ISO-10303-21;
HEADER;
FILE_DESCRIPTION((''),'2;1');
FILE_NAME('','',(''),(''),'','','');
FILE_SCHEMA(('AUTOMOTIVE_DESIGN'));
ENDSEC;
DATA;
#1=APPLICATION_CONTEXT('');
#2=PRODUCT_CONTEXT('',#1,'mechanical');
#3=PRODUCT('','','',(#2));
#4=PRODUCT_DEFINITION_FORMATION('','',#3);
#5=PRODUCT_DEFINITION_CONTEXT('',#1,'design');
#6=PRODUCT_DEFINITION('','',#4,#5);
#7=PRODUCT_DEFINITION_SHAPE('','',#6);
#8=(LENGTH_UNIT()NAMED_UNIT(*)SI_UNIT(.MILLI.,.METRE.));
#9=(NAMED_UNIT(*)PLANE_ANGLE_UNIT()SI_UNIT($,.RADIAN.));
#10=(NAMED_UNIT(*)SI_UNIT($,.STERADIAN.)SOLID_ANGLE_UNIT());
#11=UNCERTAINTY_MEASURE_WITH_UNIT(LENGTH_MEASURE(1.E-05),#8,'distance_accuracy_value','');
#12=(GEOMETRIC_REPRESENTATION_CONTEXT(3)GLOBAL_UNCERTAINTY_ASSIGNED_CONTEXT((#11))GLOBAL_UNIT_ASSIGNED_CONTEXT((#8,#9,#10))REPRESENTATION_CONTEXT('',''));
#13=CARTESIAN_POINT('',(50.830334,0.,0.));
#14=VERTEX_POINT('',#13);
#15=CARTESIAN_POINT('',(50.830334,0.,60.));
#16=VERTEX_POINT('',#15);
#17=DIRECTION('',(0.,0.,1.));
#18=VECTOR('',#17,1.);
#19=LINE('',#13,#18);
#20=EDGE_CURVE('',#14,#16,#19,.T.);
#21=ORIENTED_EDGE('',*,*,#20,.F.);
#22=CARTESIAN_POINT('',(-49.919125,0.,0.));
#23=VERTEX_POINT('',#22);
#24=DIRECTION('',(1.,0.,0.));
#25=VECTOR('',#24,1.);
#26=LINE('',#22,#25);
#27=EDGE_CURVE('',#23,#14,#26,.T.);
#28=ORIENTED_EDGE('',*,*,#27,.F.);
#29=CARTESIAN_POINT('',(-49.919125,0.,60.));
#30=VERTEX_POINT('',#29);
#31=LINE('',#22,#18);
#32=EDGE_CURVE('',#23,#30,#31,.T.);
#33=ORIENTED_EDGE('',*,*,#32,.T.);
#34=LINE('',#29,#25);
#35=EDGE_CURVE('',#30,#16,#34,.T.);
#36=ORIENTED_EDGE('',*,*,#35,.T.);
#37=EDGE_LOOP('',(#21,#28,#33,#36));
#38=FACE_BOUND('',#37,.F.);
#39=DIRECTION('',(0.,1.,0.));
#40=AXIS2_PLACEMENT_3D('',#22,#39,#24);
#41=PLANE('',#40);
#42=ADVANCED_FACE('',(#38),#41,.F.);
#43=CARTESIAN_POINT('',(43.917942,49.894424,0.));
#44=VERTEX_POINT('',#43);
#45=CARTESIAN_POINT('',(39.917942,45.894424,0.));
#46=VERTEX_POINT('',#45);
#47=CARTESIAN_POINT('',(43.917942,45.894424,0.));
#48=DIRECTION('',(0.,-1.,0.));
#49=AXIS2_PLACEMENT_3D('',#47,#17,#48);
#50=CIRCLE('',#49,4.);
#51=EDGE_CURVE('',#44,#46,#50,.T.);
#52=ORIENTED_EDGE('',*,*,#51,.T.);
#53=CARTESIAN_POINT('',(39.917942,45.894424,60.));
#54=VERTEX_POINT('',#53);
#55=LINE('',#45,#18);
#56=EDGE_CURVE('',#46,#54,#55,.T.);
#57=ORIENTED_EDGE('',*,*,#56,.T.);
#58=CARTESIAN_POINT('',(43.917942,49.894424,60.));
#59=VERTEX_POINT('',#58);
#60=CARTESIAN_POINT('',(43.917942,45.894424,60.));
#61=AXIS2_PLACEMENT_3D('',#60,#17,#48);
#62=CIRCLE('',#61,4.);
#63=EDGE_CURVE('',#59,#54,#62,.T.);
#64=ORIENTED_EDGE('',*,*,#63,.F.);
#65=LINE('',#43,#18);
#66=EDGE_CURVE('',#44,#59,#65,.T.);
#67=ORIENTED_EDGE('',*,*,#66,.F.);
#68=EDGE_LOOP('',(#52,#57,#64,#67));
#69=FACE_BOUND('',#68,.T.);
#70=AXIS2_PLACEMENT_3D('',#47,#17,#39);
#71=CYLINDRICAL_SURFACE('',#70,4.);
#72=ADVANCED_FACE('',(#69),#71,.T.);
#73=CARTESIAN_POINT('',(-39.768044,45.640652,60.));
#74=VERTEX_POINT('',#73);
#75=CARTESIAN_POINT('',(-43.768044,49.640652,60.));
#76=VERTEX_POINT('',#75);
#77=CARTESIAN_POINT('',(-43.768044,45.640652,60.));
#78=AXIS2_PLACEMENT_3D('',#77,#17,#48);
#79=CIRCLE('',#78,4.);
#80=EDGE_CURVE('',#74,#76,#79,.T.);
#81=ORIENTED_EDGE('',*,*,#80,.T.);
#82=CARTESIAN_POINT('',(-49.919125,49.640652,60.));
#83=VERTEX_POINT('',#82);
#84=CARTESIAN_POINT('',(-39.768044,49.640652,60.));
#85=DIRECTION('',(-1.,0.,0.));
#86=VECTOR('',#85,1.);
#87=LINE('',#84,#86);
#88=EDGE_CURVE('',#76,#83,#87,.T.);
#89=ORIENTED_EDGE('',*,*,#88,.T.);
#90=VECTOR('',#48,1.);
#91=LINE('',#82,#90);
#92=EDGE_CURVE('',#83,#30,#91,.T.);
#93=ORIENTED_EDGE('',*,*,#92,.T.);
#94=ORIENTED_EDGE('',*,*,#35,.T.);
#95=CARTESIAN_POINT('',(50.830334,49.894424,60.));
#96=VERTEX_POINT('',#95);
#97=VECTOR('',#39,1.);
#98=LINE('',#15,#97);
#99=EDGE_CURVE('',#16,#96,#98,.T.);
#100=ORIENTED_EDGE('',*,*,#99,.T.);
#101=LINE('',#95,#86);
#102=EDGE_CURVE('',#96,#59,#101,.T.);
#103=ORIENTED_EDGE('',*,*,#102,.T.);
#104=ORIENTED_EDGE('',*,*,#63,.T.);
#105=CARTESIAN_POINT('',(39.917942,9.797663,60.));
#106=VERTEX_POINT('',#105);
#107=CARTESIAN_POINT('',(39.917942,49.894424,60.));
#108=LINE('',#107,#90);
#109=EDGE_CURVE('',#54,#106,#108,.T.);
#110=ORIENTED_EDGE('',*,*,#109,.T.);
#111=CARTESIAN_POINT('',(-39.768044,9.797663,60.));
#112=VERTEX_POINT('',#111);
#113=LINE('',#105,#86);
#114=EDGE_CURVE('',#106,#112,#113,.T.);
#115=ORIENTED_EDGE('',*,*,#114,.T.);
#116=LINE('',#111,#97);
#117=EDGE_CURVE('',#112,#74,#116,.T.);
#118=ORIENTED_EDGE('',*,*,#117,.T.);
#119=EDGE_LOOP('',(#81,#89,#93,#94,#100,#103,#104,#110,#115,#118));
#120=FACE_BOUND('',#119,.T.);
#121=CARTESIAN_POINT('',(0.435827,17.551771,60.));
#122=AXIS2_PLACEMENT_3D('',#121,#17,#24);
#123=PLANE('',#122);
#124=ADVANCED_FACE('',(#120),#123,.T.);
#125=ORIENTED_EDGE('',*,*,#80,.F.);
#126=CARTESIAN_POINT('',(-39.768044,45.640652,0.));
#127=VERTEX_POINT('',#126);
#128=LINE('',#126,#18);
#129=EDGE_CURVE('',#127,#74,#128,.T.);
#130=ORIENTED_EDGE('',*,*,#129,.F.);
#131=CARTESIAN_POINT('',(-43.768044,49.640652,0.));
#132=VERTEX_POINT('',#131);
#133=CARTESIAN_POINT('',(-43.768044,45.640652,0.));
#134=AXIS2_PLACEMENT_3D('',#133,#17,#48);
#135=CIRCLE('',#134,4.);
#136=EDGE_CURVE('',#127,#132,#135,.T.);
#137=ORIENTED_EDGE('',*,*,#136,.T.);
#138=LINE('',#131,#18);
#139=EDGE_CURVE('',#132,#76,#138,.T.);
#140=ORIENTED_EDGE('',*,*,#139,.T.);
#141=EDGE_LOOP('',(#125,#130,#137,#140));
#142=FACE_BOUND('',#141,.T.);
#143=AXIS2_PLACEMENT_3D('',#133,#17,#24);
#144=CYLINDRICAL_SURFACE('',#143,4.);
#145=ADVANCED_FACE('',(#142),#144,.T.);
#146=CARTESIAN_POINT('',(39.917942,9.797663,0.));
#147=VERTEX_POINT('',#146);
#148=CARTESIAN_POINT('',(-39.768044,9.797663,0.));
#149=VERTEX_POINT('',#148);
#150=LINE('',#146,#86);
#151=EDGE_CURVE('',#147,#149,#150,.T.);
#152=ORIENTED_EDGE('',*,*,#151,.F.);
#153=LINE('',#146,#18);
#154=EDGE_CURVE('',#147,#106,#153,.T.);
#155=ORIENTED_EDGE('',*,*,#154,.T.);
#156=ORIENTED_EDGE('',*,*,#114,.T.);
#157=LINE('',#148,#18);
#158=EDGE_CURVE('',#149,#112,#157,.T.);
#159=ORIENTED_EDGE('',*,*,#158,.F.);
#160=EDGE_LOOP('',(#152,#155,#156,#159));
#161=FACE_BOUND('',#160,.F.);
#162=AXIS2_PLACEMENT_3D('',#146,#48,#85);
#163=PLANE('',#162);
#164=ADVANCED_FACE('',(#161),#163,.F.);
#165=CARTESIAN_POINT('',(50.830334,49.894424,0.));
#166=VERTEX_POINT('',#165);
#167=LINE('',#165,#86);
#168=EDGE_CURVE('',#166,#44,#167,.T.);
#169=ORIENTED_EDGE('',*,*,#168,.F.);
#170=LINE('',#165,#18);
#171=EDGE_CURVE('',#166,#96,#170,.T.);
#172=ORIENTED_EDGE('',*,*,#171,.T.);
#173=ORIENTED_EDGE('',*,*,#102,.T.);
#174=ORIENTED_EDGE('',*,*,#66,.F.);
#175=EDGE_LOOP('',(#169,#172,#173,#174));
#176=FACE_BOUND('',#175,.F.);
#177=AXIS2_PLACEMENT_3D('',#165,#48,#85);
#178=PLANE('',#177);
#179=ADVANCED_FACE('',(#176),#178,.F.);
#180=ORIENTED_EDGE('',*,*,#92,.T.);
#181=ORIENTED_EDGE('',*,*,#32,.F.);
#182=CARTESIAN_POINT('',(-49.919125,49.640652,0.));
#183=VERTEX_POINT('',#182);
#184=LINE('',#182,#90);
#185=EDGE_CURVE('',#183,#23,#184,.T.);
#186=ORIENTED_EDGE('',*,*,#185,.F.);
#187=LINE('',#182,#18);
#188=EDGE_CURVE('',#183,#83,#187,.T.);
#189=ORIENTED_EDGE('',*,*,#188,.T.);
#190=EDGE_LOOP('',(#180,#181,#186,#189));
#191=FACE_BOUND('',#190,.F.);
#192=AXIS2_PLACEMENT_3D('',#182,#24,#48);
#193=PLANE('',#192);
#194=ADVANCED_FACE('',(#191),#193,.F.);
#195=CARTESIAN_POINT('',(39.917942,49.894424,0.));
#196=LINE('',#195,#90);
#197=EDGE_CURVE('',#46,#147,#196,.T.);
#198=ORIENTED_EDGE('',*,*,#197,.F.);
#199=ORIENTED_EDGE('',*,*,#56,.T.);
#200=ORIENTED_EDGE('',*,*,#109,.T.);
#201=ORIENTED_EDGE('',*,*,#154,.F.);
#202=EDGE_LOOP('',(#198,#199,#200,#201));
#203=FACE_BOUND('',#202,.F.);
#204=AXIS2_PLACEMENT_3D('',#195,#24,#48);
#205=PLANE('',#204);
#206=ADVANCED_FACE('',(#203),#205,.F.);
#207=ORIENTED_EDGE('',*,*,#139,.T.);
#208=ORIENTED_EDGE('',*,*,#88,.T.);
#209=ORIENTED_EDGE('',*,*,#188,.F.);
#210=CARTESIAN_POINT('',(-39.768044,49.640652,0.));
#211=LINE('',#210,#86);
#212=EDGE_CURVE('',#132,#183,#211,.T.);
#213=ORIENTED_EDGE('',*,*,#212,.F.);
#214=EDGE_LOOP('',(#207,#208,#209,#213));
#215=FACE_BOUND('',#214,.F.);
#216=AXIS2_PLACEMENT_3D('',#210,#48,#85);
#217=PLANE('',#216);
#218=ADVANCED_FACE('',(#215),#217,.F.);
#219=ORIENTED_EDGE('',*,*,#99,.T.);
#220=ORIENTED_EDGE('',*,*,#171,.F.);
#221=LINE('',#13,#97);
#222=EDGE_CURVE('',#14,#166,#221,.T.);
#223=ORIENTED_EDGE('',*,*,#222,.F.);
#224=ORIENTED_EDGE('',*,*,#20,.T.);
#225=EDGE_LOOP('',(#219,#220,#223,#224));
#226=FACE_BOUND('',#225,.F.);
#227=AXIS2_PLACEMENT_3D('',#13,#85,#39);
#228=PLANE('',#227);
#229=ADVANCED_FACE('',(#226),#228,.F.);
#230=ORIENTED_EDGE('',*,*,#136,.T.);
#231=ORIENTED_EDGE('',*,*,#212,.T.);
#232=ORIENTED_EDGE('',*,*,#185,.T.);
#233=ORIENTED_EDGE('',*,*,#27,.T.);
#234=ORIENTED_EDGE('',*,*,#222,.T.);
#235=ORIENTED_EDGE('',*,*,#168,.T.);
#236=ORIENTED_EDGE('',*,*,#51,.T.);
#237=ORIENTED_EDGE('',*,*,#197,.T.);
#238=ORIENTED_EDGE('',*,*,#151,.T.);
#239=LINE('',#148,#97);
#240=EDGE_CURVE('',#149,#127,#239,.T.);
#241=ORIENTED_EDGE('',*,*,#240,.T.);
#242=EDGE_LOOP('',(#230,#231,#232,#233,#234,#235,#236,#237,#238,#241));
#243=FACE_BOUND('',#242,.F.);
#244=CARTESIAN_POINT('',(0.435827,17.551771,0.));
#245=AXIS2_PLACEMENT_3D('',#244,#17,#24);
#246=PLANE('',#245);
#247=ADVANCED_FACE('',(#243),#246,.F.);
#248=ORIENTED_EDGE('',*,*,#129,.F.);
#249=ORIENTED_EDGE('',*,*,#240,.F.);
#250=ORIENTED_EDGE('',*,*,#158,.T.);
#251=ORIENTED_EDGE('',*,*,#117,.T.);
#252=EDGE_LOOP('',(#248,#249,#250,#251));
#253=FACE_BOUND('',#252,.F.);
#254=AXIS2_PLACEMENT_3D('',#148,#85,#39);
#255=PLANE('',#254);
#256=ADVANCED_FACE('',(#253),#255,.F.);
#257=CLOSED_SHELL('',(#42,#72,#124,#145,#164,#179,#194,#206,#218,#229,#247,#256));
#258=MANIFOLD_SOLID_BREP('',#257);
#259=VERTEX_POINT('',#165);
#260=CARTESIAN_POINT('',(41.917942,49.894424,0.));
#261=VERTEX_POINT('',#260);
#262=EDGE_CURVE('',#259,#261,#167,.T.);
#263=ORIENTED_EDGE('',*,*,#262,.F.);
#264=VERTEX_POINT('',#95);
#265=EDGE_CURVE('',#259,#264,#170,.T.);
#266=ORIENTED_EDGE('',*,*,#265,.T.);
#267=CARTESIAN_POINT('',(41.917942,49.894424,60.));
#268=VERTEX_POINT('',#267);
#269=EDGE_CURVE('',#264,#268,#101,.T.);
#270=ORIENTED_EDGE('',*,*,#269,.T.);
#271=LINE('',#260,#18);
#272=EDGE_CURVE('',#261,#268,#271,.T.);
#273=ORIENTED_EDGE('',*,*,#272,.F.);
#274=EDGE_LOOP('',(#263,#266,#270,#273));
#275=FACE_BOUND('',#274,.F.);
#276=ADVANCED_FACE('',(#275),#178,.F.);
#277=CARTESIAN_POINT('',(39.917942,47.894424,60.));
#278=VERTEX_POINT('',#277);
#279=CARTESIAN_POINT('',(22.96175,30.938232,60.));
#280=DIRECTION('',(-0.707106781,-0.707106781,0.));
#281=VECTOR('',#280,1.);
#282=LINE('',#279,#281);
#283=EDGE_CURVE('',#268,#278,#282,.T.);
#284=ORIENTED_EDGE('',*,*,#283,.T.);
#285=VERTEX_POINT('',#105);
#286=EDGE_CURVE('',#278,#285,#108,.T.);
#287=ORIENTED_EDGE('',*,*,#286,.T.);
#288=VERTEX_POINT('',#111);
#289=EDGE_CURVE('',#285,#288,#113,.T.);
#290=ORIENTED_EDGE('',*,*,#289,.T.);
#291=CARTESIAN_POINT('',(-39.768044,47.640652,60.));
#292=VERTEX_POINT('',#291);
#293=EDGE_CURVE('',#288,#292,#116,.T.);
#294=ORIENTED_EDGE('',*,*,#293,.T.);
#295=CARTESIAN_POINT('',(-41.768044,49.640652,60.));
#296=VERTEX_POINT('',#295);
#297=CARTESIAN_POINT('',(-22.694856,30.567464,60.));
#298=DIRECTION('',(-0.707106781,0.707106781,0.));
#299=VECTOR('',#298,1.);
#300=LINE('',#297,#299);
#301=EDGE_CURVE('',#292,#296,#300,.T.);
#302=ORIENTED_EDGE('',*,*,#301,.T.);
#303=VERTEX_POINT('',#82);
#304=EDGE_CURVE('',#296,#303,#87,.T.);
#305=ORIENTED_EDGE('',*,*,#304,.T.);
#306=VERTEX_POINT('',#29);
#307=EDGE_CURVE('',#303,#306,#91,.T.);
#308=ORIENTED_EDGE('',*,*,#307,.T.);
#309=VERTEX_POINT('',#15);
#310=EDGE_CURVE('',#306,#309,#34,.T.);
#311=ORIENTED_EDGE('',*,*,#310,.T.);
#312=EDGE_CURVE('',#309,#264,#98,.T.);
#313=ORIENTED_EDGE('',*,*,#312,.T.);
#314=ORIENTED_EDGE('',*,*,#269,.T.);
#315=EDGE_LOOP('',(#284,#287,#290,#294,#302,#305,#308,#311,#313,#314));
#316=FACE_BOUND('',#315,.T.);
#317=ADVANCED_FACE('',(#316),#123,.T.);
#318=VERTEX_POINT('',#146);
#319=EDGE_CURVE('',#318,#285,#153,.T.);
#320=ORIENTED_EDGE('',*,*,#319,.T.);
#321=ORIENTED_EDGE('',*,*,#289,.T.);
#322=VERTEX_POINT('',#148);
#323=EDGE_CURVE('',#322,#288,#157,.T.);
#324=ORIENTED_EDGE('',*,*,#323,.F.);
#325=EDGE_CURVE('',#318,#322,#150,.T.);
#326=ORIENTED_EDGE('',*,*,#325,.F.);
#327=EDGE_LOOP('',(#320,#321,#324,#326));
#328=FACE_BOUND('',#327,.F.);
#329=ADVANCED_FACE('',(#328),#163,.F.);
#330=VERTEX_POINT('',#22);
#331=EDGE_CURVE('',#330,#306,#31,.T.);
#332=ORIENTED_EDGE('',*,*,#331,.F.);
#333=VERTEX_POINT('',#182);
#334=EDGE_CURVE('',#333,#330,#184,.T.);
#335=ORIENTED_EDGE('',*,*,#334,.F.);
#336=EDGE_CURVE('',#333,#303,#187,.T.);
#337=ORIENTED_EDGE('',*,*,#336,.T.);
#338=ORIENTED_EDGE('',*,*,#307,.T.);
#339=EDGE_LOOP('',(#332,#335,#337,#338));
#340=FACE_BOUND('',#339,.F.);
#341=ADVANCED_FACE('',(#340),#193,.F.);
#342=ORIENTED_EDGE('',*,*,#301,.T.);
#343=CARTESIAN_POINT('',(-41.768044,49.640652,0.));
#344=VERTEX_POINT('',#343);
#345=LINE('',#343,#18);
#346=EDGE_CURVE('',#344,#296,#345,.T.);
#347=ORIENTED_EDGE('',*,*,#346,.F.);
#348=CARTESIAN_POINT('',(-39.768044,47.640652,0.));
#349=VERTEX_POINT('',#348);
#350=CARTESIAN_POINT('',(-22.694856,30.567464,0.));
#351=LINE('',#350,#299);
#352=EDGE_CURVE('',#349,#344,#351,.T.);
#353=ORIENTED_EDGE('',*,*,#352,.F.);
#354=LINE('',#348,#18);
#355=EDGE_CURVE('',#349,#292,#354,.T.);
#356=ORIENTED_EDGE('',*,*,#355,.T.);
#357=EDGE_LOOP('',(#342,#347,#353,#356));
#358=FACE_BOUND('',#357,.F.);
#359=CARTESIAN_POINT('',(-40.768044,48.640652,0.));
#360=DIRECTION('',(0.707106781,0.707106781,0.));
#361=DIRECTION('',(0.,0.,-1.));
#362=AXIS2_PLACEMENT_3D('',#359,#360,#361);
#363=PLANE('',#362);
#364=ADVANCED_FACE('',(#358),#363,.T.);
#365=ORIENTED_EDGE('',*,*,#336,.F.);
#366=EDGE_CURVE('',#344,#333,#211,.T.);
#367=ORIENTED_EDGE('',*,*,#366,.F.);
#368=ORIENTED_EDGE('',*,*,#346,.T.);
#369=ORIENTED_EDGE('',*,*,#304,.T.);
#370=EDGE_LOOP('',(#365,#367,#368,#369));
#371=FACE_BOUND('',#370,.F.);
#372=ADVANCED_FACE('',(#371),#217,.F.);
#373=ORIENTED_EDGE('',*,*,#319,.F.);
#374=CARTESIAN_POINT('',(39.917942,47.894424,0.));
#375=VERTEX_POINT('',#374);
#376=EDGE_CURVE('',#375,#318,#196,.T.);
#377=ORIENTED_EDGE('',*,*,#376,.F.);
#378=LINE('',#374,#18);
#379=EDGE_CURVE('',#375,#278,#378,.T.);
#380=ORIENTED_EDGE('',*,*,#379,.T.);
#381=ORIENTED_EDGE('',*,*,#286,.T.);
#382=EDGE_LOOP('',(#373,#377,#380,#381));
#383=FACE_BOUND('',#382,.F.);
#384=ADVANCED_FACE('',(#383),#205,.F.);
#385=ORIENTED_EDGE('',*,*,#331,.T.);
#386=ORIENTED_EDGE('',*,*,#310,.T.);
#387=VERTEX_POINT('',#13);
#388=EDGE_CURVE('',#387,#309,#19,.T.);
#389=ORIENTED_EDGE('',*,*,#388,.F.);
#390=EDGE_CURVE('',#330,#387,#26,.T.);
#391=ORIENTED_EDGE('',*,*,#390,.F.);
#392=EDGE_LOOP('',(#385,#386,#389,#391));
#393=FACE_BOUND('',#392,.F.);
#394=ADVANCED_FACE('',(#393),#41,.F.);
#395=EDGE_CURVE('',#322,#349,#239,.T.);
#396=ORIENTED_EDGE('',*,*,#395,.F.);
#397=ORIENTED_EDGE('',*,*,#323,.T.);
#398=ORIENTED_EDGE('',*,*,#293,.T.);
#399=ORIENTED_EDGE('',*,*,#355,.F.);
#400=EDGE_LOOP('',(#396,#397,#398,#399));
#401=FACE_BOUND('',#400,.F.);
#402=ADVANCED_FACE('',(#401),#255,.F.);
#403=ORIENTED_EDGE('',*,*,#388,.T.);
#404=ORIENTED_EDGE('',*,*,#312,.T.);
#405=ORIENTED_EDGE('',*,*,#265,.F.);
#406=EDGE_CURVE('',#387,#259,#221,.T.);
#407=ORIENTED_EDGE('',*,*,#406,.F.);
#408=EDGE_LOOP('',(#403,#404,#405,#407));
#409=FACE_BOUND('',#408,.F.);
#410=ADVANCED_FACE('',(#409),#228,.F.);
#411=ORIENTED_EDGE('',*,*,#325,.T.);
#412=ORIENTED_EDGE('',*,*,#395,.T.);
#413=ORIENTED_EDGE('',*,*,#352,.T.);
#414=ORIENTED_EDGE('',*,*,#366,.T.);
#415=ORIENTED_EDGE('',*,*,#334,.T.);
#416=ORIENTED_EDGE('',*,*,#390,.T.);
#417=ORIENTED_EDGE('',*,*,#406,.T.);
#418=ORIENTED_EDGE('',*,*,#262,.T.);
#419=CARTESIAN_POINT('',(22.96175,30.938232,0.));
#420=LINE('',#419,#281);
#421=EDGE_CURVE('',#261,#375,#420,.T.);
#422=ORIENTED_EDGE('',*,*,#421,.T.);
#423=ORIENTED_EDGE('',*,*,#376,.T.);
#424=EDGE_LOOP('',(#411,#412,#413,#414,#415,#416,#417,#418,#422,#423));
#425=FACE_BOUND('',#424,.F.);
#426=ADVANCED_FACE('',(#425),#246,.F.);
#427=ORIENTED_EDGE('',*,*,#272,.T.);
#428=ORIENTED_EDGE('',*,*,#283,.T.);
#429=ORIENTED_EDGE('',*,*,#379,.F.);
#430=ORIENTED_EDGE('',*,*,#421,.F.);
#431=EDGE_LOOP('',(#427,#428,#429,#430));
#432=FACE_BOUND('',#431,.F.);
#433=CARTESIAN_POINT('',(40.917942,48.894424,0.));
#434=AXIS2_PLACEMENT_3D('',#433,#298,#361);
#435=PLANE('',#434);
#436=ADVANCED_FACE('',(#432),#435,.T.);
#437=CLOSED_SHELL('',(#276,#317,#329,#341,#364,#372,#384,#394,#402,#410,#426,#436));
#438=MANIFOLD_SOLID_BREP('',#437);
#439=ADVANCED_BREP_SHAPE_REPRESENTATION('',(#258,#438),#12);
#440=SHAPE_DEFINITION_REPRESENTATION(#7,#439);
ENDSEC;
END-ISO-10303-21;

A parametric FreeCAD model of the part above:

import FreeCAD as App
import Part
import Sketcher

V = App.Vector
Q = App.Units.Quantity


def edges_at(feature, points):
    """Names of the edges that pass closest to the given points."""
    edges = feature.Shape.Edges
    near = lambda p: min(range(len(edges)), key=lambda i: edges[i].distToShape(Part.Vertex(*p))[0])
    return sorted({f"Edge{near(p) + 1}" for p in points})

doc = App.newDocument("Part")
params = doc.addObject("Spreadsheet::Sheet", "Params")
for row, (alias, value) in enumerate([
    ("pad1_length", "60 mm"),
    ("chamfer_size", "2 mm"),
    ("pad2_length", "60 mm"),
    ("fillet_radius", "4 mm"),
], start=1):
    params.set(f"A{row}", alias)
    params.set(f"B{row}", "=" + value)
    params.setAlias(f"B{row}", alias)

body = doc.addObject("PartDesign::Body", "Body")

# Sketch on XY plane
sketch1 = body.newObject("Sketcher::SketchObject", "Sketch")
sketch1.AttachmentSupport = (doc.getObject("XY_Plane"), [""])
sketch1.MapMode = "FlatFace"
sketch1.addGeometry([
    Part.LineSegment(V(-50, 50, 0), V(-50, 0, 0)),  # 0
    Part.LineSegment(V(-50, 0, 0), V(51, 0, 0)),  # 1
    Part.LineSegment(V(51, 0, 0), V(51, 50, 0)),  # 2
    Part.LineSegment(V(51, 50, 0), V(40, 50, 0)),  # 3
    Part.LineSegment(V(40, 50, 0), V(40, 10, 0)),  # 4
    Part.LineSegment(V(40, 10, 0), V(-40, 10, 0)),  # 5
    Part.LineSegment(V(-40, 10, 0), V(-40, 50, 0)),  # 6
    Part.LineSegment(V(-40, 50, 0), V(-50, 50, 0)),  # 7
], False)
sketch1.addConstraint([
    Sketcher.Constraint("Coincident", 0, 2, 1, 1),
    Sketcher.Constraint("Coincident", 1, 2, 2, 1),
    Sketcher.Constraint("Coincident", 2, 2, 3, 1),
    Sketcher.Constraint("Coincident", 3, 2, 4, 1),
    Sketcher.Constraint("Coincident", 4, 2, 5, 1),
    Sketcher.Constraint("Coincident", 5, 2, 6, 1),
    Sketcher.Constraint("Coincident", 6, 2, 7, 1),
    Sketcher.Constraint("Coincident", 7, 2, 0, 1),
    Sketcher.Constraint("Vertical", 0),
    Sketcher.Constraint("Horizontal", 1),
    Sketcher.Constraint("Vertical", 2),
    Sketcher.Constraint("Horizontal", 3),
    Sketcher.Constraint("Vertical", 4),
    Sketcher.Constraint("Horizontal", 5),
    Sketcher.Constraint("Vertical", 6),
    Sketcher.Constraint("Horizontal", 7),
    Sketcher.Constraint("PointOnObject", 0, 2, -1),
    Sketcher.Constraint("DistanceX", 1, 1, 1, 2, Q("100.749459 mm")),
    Sketcher.Constraint("DistanceX", 7, 2, 7, 1, Q("10.151081 mm")),
    Sketcher.Constraint("DistanceY", 4, 2, 4, 1, Q("40.096761 mm")),
    Sketcher.Constraint("DistanceY", 6, 1, 6, 2, Q("39.842989 mm")),
    Sketcher.Constraint("DistanceX", 3, 2, 3, 1, Q("10.912392 mm")),
    Sketcher.Constraint("DistanceY", 0, 2, 0, 1, Q("49.640652 mm")),
    Sketcher.Constraint("DistanceX", -1, 1, 3, 2, Q("39.917942 mm")),
])
pad1 = body.newObject("PartDesign::Pad", "Pad")
pad1.Profile = sketch1
pad1.setExpression("Length", "Params.pad1_length")
doc.recompute()

chamfer = body.newObject("PartDesign::Chamfer", "Chamfer")
chamfer.Base = (pad1, edges_at(pad1, [(-39.768, 49.641, 30), (39.918, 49.894, 30)]))
chamfer.setExpression("Size", "Params.chamfer_size")
body2 = doc.addObject("PartDesign::Body", "Body001")

# Sketch on XY plane
sketch2 = body2.newObject("Sketcher::SketchObject", "Sketch001")
sketch2.AttachmentSupport = (doc.getObject("XY_Plane001"), [""])
sketch2.MapMode = "FlatFace"
sketch2.addGeometry([
    Part.LineSegment(V(-50, 50, 0), V(-50, 0, 0)),  # 0
    Part.LineSegment(V(-50, 0, 0), V(51, 0, 0)),  # 1
    Part.LineSegment(V(51, 0, 0), V(51, 50, 0)),  # 2
    Part.LineSegment(V(51, 50, 0), V(40, 50, 0)),  # 3
    Part.LineSegment(V(40, 50, 0), V(40, 10, 0)),  # 4
    Part.LineSegment(V(40, 10, 0), V(-40, 10, 0)),  # 5
    Part.LineSegment(V(-40, 10, 0), V(-40, 50, 0)),  # 6
    Part.LineSegment(V(-40, 50, 0), V(-50, 50, 0)),  # 7
], False)
sketch2.addConstraint([
    Sketcher.Constraint("Coincident", 0, 2, 1, 1),
    Sketcher.Constraint("Coincident", 1, 2, 2, 1),
    Sketcher.Constraint("Coincident", 2, 2, 3, 1),
    Sketcher.Constraint("Coincident", 3, 2, 4, 1),
    Sketcher.Constraint("Coincident", 4, 2, 5, 1),
    Sketcher.Constraint("Coincident", 5, 2, 6, 1),
    Sketcher.Constraint("Coincident", 6, 2, 7, 1),
    Sketcher.Constraint("Coincident", 7, 2, 0, 1),
    Sketcher.Constraint("Vertical", 0),
    Sketcher.Constraint("Horizontal", 1),
    Sketcher.Constraint("Vertical", 2),
    Sketcher.Constraint("Horizontal", 3),
    Sketcher.Constraint("Vertical", 4),
    Sketcher.Constraint("Horizontal", 5),
    Sketcher.Constraint("Vertical", 6),
    Sketcher.Constraint("Horizontal", 7),
    Sketcher.Constraint("PointOnObject", 0, 2, -1),
    Sketcher.Constraint("DistanceX", 1, 1, 1, 2, Q("100.749459 mm")),
    Sketcher.Constraint("DistanceX", 7, 2, 7, 1, Q("10.151081 mm")),
    Sketcher.Constraint("DistanceY", 4, 2, 4, 1, Q("40.096761 mm")),
    Sketcher.Constraint("DistanceY", 6, 1, 6, 2, Q("39.842989 mm")),
    Sketcher.Constraint("DistanceX", 3, 2, 3, 1, Q("10.912392 mm")),
    Sketcher.Constraint("DistanceY", 0, 2, 0, 1, Q("49.640652 mm")),
    Sketcher.Constraint("DistanceX", -1, 1, 3, 2, Q("39.917942 mm")),
])
pad2 = body2.newObject("PartDesign::Pad", "Pad001")
pad2.Profile = sketch2
pad2.setExpression("Length", "Params.pad2_length")
doc.recompute()

fillet = body2.newObject("PartDesign::Fillet", "Fillet")
fillet.Base = (pad2, edges_at(pad2, [(-39.768, 49.641, 30), (39.918, 49.894, 30)]))
fillet.setExpression("Radius", "Params.fillet_radius")

doc.recompute()
